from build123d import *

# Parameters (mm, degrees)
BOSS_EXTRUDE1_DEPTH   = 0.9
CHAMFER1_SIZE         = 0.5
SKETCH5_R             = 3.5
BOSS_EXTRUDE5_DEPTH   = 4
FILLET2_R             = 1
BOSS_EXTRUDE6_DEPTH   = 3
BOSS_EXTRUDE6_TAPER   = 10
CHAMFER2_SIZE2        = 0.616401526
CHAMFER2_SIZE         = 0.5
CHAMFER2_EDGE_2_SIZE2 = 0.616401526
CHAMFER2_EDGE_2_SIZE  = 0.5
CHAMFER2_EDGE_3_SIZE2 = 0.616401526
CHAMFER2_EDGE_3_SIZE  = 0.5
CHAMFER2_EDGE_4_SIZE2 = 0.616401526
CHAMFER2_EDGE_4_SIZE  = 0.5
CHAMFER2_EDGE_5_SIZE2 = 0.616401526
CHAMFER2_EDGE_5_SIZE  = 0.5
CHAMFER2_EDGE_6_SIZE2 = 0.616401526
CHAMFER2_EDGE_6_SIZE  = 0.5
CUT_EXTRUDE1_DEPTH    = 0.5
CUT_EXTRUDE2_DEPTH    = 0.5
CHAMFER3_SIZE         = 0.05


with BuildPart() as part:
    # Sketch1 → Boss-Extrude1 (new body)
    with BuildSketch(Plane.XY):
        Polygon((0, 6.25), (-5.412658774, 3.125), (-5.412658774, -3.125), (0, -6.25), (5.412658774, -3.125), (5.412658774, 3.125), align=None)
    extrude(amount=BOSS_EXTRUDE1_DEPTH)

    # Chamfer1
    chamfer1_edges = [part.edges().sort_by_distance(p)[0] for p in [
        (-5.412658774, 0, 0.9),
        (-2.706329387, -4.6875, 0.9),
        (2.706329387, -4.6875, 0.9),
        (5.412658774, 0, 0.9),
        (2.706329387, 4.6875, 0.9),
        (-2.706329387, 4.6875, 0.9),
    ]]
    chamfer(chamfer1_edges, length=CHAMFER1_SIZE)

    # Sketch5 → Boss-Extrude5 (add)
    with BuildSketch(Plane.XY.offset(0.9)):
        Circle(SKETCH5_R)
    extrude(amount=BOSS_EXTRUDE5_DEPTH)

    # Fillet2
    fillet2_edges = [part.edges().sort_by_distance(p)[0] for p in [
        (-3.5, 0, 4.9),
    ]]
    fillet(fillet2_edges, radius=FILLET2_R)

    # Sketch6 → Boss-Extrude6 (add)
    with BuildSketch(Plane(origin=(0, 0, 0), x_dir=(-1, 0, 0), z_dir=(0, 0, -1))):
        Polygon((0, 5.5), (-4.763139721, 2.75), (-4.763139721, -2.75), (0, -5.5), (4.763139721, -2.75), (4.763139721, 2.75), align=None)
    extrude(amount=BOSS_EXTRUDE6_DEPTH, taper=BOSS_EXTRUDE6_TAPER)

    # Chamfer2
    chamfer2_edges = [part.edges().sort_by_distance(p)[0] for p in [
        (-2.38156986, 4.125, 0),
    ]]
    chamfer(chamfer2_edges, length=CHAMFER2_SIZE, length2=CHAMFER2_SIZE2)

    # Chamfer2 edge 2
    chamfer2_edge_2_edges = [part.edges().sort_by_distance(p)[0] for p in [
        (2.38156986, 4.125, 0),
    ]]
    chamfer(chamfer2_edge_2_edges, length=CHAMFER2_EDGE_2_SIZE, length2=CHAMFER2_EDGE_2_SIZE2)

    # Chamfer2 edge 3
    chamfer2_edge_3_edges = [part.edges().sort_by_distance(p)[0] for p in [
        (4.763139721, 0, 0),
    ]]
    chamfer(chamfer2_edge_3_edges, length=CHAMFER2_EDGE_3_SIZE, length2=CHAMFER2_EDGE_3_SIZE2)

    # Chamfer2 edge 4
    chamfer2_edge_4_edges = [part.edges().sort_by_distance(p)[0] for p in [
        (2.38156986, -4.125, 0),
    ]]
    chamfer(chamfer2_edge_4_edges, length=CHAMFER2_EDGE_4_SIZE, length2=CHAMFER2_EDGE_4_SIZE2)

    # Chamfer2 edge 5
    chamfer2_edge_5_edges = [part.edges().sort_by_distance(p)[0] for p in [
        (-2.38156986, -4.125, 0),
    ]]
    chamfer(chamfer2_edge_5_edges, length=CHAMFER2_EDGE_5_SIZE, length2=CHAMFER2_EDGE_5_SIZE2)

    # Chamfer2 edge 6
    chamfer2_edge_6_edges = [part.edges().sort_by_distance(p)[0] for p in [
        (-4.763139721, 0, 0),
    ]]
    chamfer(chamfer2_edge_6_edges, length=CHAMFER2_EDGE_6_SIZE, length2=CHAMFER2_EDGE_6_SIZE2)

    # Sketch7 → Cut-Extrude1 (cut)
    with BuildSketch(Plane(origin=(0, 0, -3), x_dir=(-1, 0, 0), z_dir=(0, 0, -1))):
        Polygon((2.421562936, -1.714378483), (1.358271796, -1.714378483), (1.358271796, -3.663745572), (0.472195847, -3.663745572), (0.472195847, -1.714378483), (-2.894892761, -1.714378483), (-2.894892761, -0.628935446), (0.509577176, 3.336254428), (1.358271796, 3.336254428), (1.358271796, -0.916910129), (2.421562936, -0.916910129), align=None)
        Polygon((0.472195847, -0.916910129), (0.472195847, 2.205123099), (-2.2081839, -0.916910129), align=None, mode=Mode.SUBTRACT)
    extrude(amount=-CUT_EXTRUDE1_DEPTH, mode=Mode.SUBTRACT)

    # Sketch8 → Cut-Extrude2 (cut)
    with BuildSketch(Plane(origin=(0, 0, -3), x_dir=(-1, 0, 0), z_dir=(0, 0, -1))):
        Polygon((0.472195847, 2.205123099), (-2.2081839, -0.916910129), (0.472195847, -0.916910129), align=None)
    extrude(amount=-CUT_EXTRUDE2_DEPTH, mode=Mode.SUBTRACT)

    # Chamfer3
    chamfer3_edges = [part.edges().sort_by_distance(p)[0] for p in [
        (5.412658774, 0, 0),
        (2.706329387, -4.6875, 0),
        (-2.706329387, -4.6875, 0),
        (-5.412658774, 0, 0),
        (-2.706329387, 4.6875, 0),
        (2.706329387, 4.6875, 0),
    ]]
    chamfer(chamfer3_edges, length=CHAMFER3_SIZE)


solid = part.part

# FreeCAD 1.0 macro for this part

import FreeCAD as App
import Part
import Sketcher
Q = App.Units.Quantity


def edges_at(feature, points):
    """Names of the edges that pass closest to the given points."""
    edges = feature.Shape.Edges
    near = lambda p: min(range(len(edges)), key=lambda i: edges[i].distToShape(Part.Vertex(*p))[0])
    return sorted({f"Edge{near(p) + 1}" for p in points})

doc = App.newDocument("Part")
body = doc.addObject("PartDesign::Body", "Body")

sketch1 = body.newObject("Sketcher::SketchObject", "Sketch")
sketch1.AttachmentSupport = (doc.getObject("XY_Plane"), [""])
sketch1.MapMode = "FlatFace"
sketch1.addGeometry(Part.LineSegment(App.Vector(0, 6, 0), App.Vector(-5, 3, 0)), False)
sketch1.addGeometry(Part.LineSegment(App.Vector(-5, 3, 0), App.Vector(-5, -3, 0)), False)
sketch1.addGeometry(Part.LineSegment(App.Vector(-5, -3, 0), App.Vector(0, -6, 0)), False)
sketch1.addGeometry(Part.LineSegment(App.Vector(0, -6, 0), App.Vector(5, -3, 0)), False)
sketch1.addGeometry(Part.LineSegment(App.Vector(5, -3, 0), App.Vector(5, 3, 0)), False)
sketch1.addGeometry(Part.LineSegment(App.Vector(5, 3, 0), App.Vector(0, 6, 0)), False)
sketch1.addConstraint(Sketcher.Constraint("Coincident", 0, 2, 1, 1))
sketch1.addConstraint(Sketcher.Constraint("Coincident", 1, 2, 2, 1))
sketch1.addConstraint(Sketcher.Constraint("Coincident", 2, 2, 3, 1))
sketch1.addConstraint(Sketcher.Constraint("Coincident", 3, 2, 4, 1))
sketch1.addConstraint(Sketcher.Constraint("Coincident", 4, 2, 5, 1))
sketch1.addConstraint(Sketcher.Constraint("Coincident", 5, 2, 0, 1))
sketch1.addConstraint(Sketcher.Constraint("Vertical", 1))
sketch1.addConstraint(Sketcher.Constraint("Vertical", 4))
sketch1.addConstraint(Sketcher.Constraint("Symmetric", 0, 2, 3, 2, -1, 1))
sketch1.addConstraint(Sketcher.Constraint("Symmetric", 2, 2, 5, 2, -1, 1))
sketch1.addConstraint(Sketcher.Constraint("PointOnObject", 2, 2, -2))
sketch1.addConstraint(Sketcher.Constraint("Parallel", 2, 5))
sketch1.addConstraint(Sketcher.Constraint("Horizontal", 1, 2, 3, 2))
sketch1.addConstraint(Sketcher.Constraint("Angle", 0, Q("-150 deg")))
sketch1.addConstraint(Sketcher.Constraint("DistanceY", 1, 2, 1, 1, 6.25))
sketch1.addConstraint(Sketcher.Constraint("DistanceY", 2, 2, 5, 2, 12.5))
pad1 = body.newObject("PartDesign::Pad", "Pad")
pad1.Profile = sketch1
pad1.Length = 0.9
doc.recompute()

chamfer = body.newObject("PartDesign::Chamfer", "Chamfer")
chamfer.Base = (pad1, edges_at(pad1, [
    (-5.413, 0, 0.9),
    (-2.706, -4.688, 0.9),
    (2.706, -4.688, 0.9),
    (5.413, 0, 0.9),
    (2.706, 4.688, 0.9),
    (-2.706, 4.688, 0.9),
]))
chamfer.Size = 0.5

sketch2 = body.newObject("Sketcher::SketchObject", "Sketch001")
sketch2.AttachmentSupport = (doc.getObject("XY_Plane"), [""])
sketch2.MapMode = "FlatFace"
sketch2.AttachmentOffset = App.Placement(App.Vector(0, 0, 0.9), App.Rotation())
sketch2.addGeometry(Part.Circle(App.Vector(0, 0, 0), App.Vector(0, 0, 1), 3.5), False)
sketch2.addConstraint(Sketcher.Constraint("Coincident", 0, 3, -1, 1))
sketch2.addConstraint(Sketcher.Constraint("Diameter", 0, 7.0))
pad2 = body.newObject("PartDesign::Pad", "Pad001")
pad2.Profile = sketch2
pad2.Length = 4
doc.recompute()

fillet = body.newObject("PartDesign::Fillet", "Fillet")
fillet.Base = (pad2, edges_at(pad2, [(-3.5, 0, 4.9)]))
fillet.Radius = 1

sketch3 = body.newObject("Sketcher::SketchObject", "Sketch002")
sketch3.AttachmentSupport = (doc.getObject("XY_Plane"), [""])
sketch3.MapMode = "FlatFace"
sketch3.addGeometry(Part.LineSegment(App.Vector(0, 6, 0), App.Vector(5, 3, 0)), False)
sketch3.addGeometry(Part.LineSegment(App.Vector(5, 3, 0), App.Vector(5, -3, 0)), False)
sketch3.addGeometry(Part.LineSegment(App.Vector(5, -3, 0), App.Vector(0, -6, 0)), False)
sketch3.addGeometry(Part.LineSegment(App.Vector(0, -6, 0), App.Vector(-5, -3, 0)), False)
sketch3.addGeometry(Part.LineSegment(App.Vector(-5, -3, 0), App.Vector(-5, 3, 0)), False)
sketch3.addGeometry(Part.LineSegment(App.Vector(-5, 3, 0), App.Vector(0, 6, 0)), False)
sketch3.addConstraint(Sketcher.Constraint("Coincident", 0, 2, 1, 1))
sketch3.addConstraint(Sketcher.Constraint("Coincident", 1, 2, 2, 1))
sketch3.addConstraint(Sketcher.Constraint("Coincident", 2, 2, 3, 1))
sketch3.addConstraint(Sketcher.Constraint("Coincident", 3, 2, 4, 1))
sketch3.addConstraint(Sketcher.Constraint("Coincident", 4, 2, 5, 1))
sketch3.addConstraint(Sketcher.Constraint("Coincident", 5, 2, 0, 1))
sketch3.addConstraint(Sketcher.Constraint("Vertical", 1))
sketch3.addConstraint(Sketcher.Constraint("Vertical", 4))
sketch3.addConstraint(Sketcher.Constraint("Symmetric", 0, 2, 3, 2, -1, 1))
sketch3.addConstraint(Sketcher.Constraint("Symmetric", 2, 2, 5, 2, -1, 1))
sketch3.addConstraint(Sketcher.Constraint("PointOnObject", 2, 2, -2))
sketch3.addConstraint(Sketcher.Constraint("Parallel", 2, 5))
sketch3.addConstraint(Sketcher.Constraint("Horizontal", 1, 2, 3, 2))
sketch3.addConstraint(Sketcher.Constraint("Angle", 0, Q("-30 deg")))
sketch3.addConstraint(Sketcher.Constraint("DistanceY", 1, 2, 1, 1, 5.5))
sketch3.addConstraint(Sketcher.Constraint("DistanceY", 2, 2, 5, 2, 11.0))
pad3 = body.newObject("PartDesign::Pad", "Pad002")
pad3.Profile = sketch3
pad3.Length = 3
pad3.Reversed = True
pad3.TaperAngle = -10
doc.recompute()

chamfer2 = body.newObject("PartDesign::Chamfer", "Chamfer001")
chamfer2.Base = (pad3, edges_at(pad3, [(-2.382, 4.125, 0)]))
chamfer2.ChamferType = "Two distances"
chamfer2.Size = 0.5
chamfer2.Size2 = 0.616402
doc.recompute()

chamfer3 = body.newObject("PartDesign::Chamfer", "Chamfer002")
chamfer3.Base = (chamfer2, edges_at(chamfer2, [(2.382, 4.125, 0)]))
chamfer3.ChamferType = "Two distances"
chamfer3.Size = 0.5
chamfer3.Size2 = 0.616402
doc.recompute()

chamfer4 = body.newObject("PartDesign::Chamfer", "Chamfer003")
chamfer4.Base = (chamfer3, edges_at(chamfer3, [(4.763, 0, 0)]))
chamfer4.ChamferType = "Two distances"
chamfer4.Size = 0.5
chamfer4.Size2 = 0.616402
doc.recompute()

chamfer5 = body.newObject("PartDesign::Chamfer", "Chamfer004")
chamfer5.Base = (chamfer4, edges_at(chamfer4, [(2.382, -4.125, 0)]))
chamfer5.ChamferType = "Two distances"
chamfer5.Size = 0.5
chamfer5.Size2 = 0.616402
doc.recompute()

chamfer6 = body.newObject("PartDesign::Chamfer", "Chamfer005")
chamfer6.Base = (chamfer5, edges_at(chamfer5, [(-2.382, -4.125, 0)]))
chamfer6.ChamferType = "Two distances"
chamfer6.Size = 0.5
chamfer6.Size2 = 0.616402
doc.recompute()

chamfer7 = body.newObject("PartDesign::Chamfer", "Chamfer006")
chamfer7.Base = (chamfer6, edges_at(chamfer6, [(-4.763, 0, 0)]))
chamfer7.ChamferType = "Two distances"
chamfer7.Size = 0.5
chamfer7.Size2 = 0.616402

sketch4 = body.newObject("Sketcher::SketchObject", "Sketch003")
sketch4.AttachmentSupport = (doc.getObject("XY_Plane"), [""])
sketch4.MapMode = "FlatFace"
sketch4.AttachmentOffset = App.Placement(App.Vector(0, 0, -3), App.Rotation())
sketch4.addGeometry(Part.LineSegment(App.Vector(-1.4, -1.7, 0), App.Vector(-2.4, -1.7, 0)), False)
sketch4.addGeometry(Part.LineSegment(App.Vector(-2.4, -1.7, 0), App.Vector(-2.4, -0.9, 0)), False)
sketch4.addGeometry(Part.LineSegment(App.Vector(-2.4, -0.9, 0), App.Vector(-1.4, -0.9, 0)), False)
sketch4.addGeometry(Part.LineSegment(App.Vector(-1.4, -0.9, 0), App.Vector(-1.4, 3.3, 0)), False)
sketch4.addGeometry(Part.LineSegment(App.Vector(-1.4, 3.3, 0), App.Vector(-0.5, 3.3, 0)), False)
sketch4.addGeometry(Part.LineSegment(App.Vector(-0.5, 3.3, 0), App.Vector(2.9, -0.6, 0)), False)
sketch4.addGeometry(Part.LineSegment(App.Vector(2.9, -0.6, 0), App.Vector(2.9, -1.7, 0)), False)
sketch4.addGeometry(Part.LineSegment(App.Vector(2.9, -1.7, 0), App.Vector(-0.5, -1.7, 0)), False)
sketch4.addGeometry(Part.LineSegment(App.Vector(-0.5, -1.7, 0), App.Vector(-0.5, -3.7, 0)), False)
sketch4.addGeometry(Part.LineSegment(App.Vector(-0.5, -3.7, 0), App.Vector(-1.4, -3.7, 0)), False)
sketch4.addGeometry(Part.LineSegment(App.Vector(-1.4, -3.7, 0), App.Vector(-1.4, -1.7, 0)), False)
sketch4.addGeometry(Part.LineSegment(App.Vector(-0.5, -0.9, 0), App.Vector(2.2, -0.9, 0)), False)
sketch4.addGeometry(Part.LineSegment(App.Vector(2.2, -0.9, 0), App.Vector(-0.5, 2.2, 0)), False)
sketch4.addGeometry(Part.LineSegment(App.Vector(-0.5, 2.2, 0), App.Vector(-0.5, -0.9, 0)), False)
sketch4.addConstraint(Sketcher.Constraint("Coincident", 0, 2, 1, 1))
sketch4.addConstraint(Sketcher.Constraint("Coincident", 1, 2, 2, 1))
sketch4.addConstraint(Sketcher.Constraint("Coincident", 2, 2, 3, 1))
sketch4.addConstraint(Sketcher.Constraint("Coincident", 3, 2, 4, 1))
sketch4.addConstraint(Sketcher.Constraint("Coincident", 4, 2, 5, 1))
sketch4.addConstraint(Sketcher.Constraint("Coincident", 5, 2, 6, 1))
sketch4.addConstraint(Sketcher.Constraint("Coincident", 6, 2, 7, 1))
sketch4.addConstraint(Sketcher.Constraint("Coincident", 7, 2, 8, 1))
sketch4.addConstraint(Sketcher.Constraint("Coincident", 8, 2, 9, 1))
sketch4.addConstraint(Sketcher.Constraint("Coincident", 9, 2, 10, 1))
sketch4.addConstraint(Sketcher.Constraint("Coincident", 10, 2, 0, 1))
sketch4.addConstraint(Sketcher.Constraint("Coincident", 11, 2, 12, 1))
sketch4.addConstraint(Sketcher.Constraint("Coincident", 12, 2, 13, 1))
sketch4.addConstraint(Sketcher.Constraint("Coincident", 13, 2, 11, 1))
sketch4.addConstraint(Sketcher.Constraint("Horizontal", 0))
sketch4.addConstraint(Sketcher.Constraint("Vertical", 1))
sketch4.addConstraint(Sketcher.Constraint("Horizontal", 2))
sketch4.addConstraint(Sketcher.Constraint("Vertical", 3))
sketch4.addConstraint(Sketcher.Constraint("Horizontal", 4))
sketch4.addConstraint(Sketcher.Constraint("Vertical", 6))
sketch4.addConstraint(Sketcher.Constraint("Horizontal", 7))
sketch4.addConstraint(Sketcher.Constraint("Vertical", 8))
sketch4.addConstraint(Sketcher.Constraint("Horizontal", 9))
sketch4.addConstraint(Sketcher.Constraint("Vertical", 10))
sketch4.addConstraint(Sketcher.Constraint("Horizontal", 11))
sketch4.addConstraint(Sketcher.Constraint("Vertical", 13))
sketch4.addConstraint(Sketcher.Constraint("Horizontal", 0, 2, 6, 2))
sketch4.addConstraint(Sketcher.Constraint("Horizontal", 2, 2, 11, 2))
sketch4.addConstraint(Sketcher.Constraint("Vertical", 3, 2, 9, 2))
sketch4.addConstraint(Sketcher.Constraint("Vertical", 8, 2, 12, 2))
sketch4.addConstraint(Sketcher.Constraint("Distance", 5, 5.226198))
sketch4.addConstraint(Sketcher.Constraint("DistanceX", 0, 2, 0, 1, 1.063291))
sketch4.addConstraint(Sketcher.Constraint("DistanceX", 7, 2, 7, 1, 3.367089))
sketch4.addConstraint(Sketcher.Constraint("DistanceX", 11, 1, 11, 2, 2.68038))
sketch4.addConstraint(Sketcher.Constraint("DistanceY", 1, 1, 1, 2, 0.797468))
sketch4.addConstraint(Sketcher.Constraint("DistanceY", 7, 2, 12, 2, 3.919502))
sketch4.addConstraint(Sketcher.Constraint("DistanceX", 4, 1, 4, 2, 0.848695))
sketch4.addConstraint(Sketcher.Constraint("DistanceX", 9, 2, 9, 1, 0.886076))
sketch4.addConstraint(Sketcher.Constraint("DistanceY", 3, 1, 3, 2, 4.253165))
sketch4.addConstraint(Sketcher.Constraint("DistanceY", 8, 2, 8, 1, 1.949367))
sketch4.addConstraint(Sketcher.Constraint("DistanceY", 0, 2, -1, 1, 1.714378))
sketch4.addConstraint(Sketcher.Constraint("DistanceX", 2, 2, -1, 1, 1.358272))
pocket1 = body.newObject("PartDesign::Pocket", "Pocket")
pocket1.Profile = sketch4
pocket1.Length = 0.5
pocket1.Reversed = True

sketch5 = body.newObject("Sketcher::SketchObject", "Sketch004")
sketch5.AttachmentSupport = (doc.getObject("XY_Plane"), [""])
sketch5.MapMode = "FlatFace"
sketch5.AttachmentOffset = App.Placement(App.Vector(0, 0, -3), App.Rotation())
sketch5.addGeometry(Part.LineSegment(App.Vector(-0.5, 2.2, 0), App.Vector(2.2, -0.9, 0)), False)
sketch5.addGeometry(Part.LineSegment(App.Vector(2.2, -0.9, 0), App.Vector(-0.5, -0.9, 0)), False)
sketch5.addGeometry(Part.LineSegment(App.Vector(-0.5, -0.9, 0), App.Vector(-0.5, 2.2, 0)), False)
sketch5.addConstraint(Sketcher.Constraint("Coincident", 0, 2, 1, 1))
sketch5.addConstraint(Sketcher.Constraint("Coincident", 1, 2, 2, 1))
sketch5.addConstraint(Sketcher.Constraint("Coincident", 2, 2, 0, 1))
sketch5.addConstraint(Sketcher.Constraint("Horizontal", 1))
sketch5.addConstraint(Sketcher.Constraint("Vertical", 2))
sketch5.addConstraint(Sketcher.Constraint("DistanceX", 1, 2, 1, 1, 2.68038))
sketch5.addConstraint(Sketcher.Constraint("DistanceY", 2, 1, 2, 2, 3.122033))
sketch5.addConstraint(Sketcher.Constraint("DistanceY", 0, 2, -1, 1, 0.91691))
sketch5.addConstraint(Sketcher.Constraint("DistanceX", -1, 1, 0, 2, 2.208184))
pocket2 = body.newObject("PartDesign::Pocket", "Pocket001")
pocket2.Profile = sketch5
pocket2.Length = 0.5
pocket2.Reversed = True
doc.recompute()

chamfer8 = body.newObject("PartDesign::Chamfer", "Chamfer007")
chamfer8.Base = (pocket2, edges_at(pocket2, [
    (5.413, 0, 0),
    (2.706, -4.688, 0),
    (-2.706, -4.688, 0),
    (-5.413, 0, 0),
    (-2.706, 4.688, 0),
    (2.706, 4.688, 0),
]))
chamfer8.Size = 0.05

doc.recompute()
